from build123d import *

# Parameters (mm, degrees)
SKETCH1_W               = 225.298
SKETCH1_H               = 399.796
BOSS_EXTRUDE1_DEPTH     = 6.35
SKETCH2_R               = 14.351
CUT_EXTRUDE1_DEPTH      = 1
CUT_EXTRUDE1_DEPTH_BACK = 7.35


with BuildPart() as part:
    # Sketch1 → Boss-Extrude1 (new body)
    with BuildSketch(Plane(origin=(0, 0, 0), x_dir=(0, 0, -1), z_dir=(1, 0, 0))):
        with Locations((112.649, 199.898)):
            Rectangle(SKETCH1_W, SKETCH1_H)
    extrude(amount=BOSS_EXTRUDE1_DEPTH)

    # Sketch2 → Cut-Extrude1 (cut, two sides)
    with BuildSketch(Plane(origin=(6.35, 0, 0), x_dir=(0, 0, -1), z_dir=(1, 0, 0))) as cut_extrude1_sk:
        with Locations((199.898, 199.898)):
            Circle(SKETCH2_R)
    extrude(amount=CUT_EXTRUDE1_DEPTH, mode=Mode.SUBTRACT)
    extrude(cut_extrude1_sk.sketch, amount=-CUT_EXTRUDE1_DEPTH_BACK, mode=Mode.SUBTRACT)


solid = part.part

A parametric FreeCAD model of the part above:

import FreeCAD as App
import Part
import Sketcher

V = App.Vector
Q = App.Units.Quantity


def add_polygon(sketch, points):
    """Adds a closed chain of lines whose ends are joined by coincident constraints."""
    first, n = sketch.GeometryCount, len(points)
    for a, b in zip(points, points[1:] + points[:1]):
        sketch.addGeometry(Part.LineSegment(App.Vector(*a, 0), App.Vector(*b, 0)), False)
    for i in range(n):
        sketch.addConstraint(Sketcher.Constraint("Coincident", first + i, 2, first + (i + 1) % n, 1))

doc = App.newDocument("Part")
params = doc.addObject("Spreadsheet::Sheet", "Params")
for row, (alias, value) in enumerate([
    ("sketch1_width", "15.74 in"),
    ("sketch1_height", "8.87 in"),
    ("pad1_length", "0.25 in"),
    ("sketch2_diameter", "1.13 in"),
], start=1):
    params.set(f"A{row}", alias)
    params.set(f"B{row}", "=" + value)
    params.setAlias(f"B{row}", alias)

body = doc.addObject("PartDesign::Body", "Body")

sketch1 = doc.addObject("Sketcher::SketchObject", "Sketch")
body.addObject(sketch1)
sketch1.AttachmentSupport = (doc.YZ_Plane, [""])
sketch1.MapMode = "FlatFace"
add_polygon(sketch1, [(399.796, 0), (0, 0), (0, -225.298), (399.796, -225.298)])
sketch1.addConstraint([
    Sketcher.Constraint("Horizontal", 0),
    Sketcher.Constraint("Vertical", 1),
    Sketcher.Constraint("Horizontal", 2),
    Sketcher.Constraint("Vertical", 3),
    Sketcher.Constraint("Coincident", 0, 2, -1, 1),
    Sketcher.Constraint("DistanceX", 0, 2, 0, 1, Q("15.74 in")),
    Sketcher.Constraint("DistanceY", 1, 2, 1, 1, Q("8.87 in")),
])
sketch1.setExpression("Constraints[9]", "Params.sketch1_width")
sketch1.setExpression("Constraints[10]", "Params.sketch1_height")
pad1 = doc.addObject("PartDesign::Pad", "Pad")
body.addObject(pad1)
pad1.Profile = sketch1
pad1.setExpression("Length", "Params.pad1_length")

sketch2 = doc.addObject("Sketcher::SketchObject", "Sketch001")
body.addObject(sketch2)
sketch2.AttachmentSupport = (doc.YZ_Plane, [""])
sketch2.MapMode = "FlatFace"
sketch2.AttachmentOffset = App.Placement(V(0, 0, 0.25 * 25.4), App.Rotation())
sketch2.addGeometry(Part.Circle(V(199.898, -199.898, 0), V(0, 0, 1), 14.351), False)
sketch2.addConstraint([
    Sketcher.Constraint("Diameter", 0, Q("1.13 in")),
    Sketcher.Constraint("DistanceX", -1, 1, 0, 3, Q("7.87 in")),
    Sketcher.Constraint("DistanceY", 0, 3, -1, 1, Q("7.87 in")),
])
sketch2.setExpression("Constraints[0]", "Params.sketch2_diameter")
pocket1 = doc.addObject("PartDesign::Pocket", "Pocket")
body.addObject(pocket1)
pocket1.Profile = sketch2
pocket1.Type = "ThroughAll"
pocket1.Midplane = True

doc.recompute()
